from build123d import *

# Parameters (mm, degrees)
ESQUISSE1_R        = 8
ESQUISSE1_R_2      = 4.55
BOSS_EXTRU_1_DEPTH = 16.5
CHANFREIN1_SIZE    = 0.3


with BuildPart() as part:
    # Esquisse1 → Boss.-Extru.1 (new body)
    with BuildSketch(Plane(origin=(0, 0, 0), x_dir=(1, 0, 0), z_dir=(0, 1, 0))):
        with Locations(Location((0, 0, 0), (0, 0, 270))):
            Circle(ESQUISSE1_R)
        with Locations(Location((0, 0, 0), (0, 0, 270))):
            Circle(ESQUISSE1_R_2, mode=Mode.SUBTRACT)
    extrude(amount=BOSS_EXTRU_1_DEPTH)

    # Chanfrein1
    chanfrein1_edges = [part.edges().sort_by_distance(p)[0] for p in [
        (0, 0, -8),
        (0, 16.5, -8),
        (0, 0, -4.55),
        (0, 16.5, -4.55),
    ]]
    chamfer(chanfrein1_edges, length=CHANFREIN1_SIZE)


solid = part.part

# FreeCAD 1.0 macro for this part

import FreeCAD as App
import Part
import Sketcher
from FreeCAD import Vector


def edges_at(feature, points):
    """Names of the edges that pass closest to the given points."""
    edges = feature.Shape.Edges
    near = lambda p: min(range(len(edges)), key=lambda i: edges[i].distToShape(Part.Vertex(*p))[0])
    return sorted({f"Edge{near(p) + 1}" for p in points})

doc = App.newDocument("Part")
body = doc.addObject("PartDesign::Body", "Body")

sketch1 = body.newObject("Sketcher::SketchObject", "Sketch")
sketch1.AttachmentSupport = (doc.getObject("XZ_Plane"), [""])
sketch1.MapMode = "FlatFace"
sketch1.addGeometry([
    Part.Circle(Vector(0, 0, 0), Vector(0, 0, 1), 8),
    Part.Circle(Vector(0, 0, 0), Vector(0, 0, 1), 4.55),
], False)
sketch1.addConstraint([
    Sketcher.Constraint("Coincident", 0, 3, -1, 1),
    Sketcher.Constraint("Coincident", 1, 3, -1, 1),
    Sketcher.Constraint("Diameter", 0, 16.0),
    Sketcher.Constraint("Diameter", 1, 9.1),
])
pad1 = body.newObject("PartDesign::Pad", "Pad")
pad1.Profile = sketch1
pad1.Length = 16.5
pad1.Reversed = True
doc.recompute()

chamfer = body.newObject("PartDesign::Chamfer", "Chamfer")
chamfer.Base = (pad1, edges_at(pad1, [
    (0, 0, -8),
    (0, 16.5, -8),
    (0, 0, -4.55),
    (0, 16.5, -4.55),
]))
chamfer.Size = 0.3

doc.recompute()
